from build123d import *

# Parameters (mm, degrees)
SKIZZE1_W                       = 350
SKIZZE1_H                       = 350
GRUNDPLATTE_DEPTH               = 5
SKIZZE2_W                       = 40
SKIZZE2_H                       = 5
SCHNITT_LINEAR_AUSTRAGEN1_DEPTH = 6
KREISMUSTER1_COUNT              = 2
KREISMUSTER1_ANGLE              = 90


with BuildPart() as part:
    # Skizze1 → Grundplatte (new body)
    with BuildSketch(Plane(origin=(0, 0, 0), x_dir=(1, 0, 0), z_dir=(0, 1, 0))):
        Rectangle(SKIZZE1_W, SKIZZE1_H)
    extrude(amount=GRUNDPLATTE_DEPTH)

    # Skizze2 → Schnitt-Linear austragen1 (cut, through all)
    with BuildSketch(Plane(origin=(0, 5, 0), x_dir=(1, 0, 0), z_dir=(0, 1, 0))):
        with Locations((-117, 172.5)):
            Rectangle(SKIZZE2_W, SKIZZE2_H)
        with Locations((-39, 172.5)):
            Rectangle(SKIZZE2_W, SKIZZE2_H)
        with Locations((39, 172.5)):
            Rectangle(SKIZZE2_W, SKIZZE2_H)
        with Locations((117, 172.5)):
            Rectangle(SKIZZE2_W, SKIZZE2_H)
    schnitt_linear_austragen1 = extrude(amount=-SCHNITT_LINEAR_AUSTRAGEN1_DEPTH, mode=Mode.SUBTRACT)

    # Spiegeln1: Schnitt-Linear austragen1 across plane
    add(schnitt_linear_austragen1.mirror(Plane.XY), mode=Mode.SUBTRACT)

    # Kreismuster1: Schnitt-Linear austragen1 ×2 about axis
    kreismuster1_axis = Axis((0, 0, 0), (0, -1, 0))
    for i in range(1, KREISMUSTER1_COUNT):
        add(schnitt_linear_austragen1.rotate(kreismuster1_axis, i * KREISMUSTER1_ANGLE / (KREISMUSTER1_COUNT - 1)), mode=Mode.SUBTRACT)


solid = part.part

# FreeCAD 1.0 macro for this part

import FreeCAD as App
import Part
import Sketcher

V = App.Vector


def add_polygon(sketch, points):
    """Adds a closed chain of lines whose ends are joined by coincident constraints."""
    first, n = sketch.GeometryCount, len(points)
    for a, b in zip(points, points[1:] + points[:1]):
        sketch.addGeometry(Part.LineSegment(App.Vector(*a, 0), App.Vector(*b, 0)), False)
    for i in range(n):
        sketch.addConstraint(Sketcher.Constraint("Coincident", first + i, 2, first + (i + 1) % n, 1))

doc = App.newDocument("Part")
params = doc.addObject("Spreadsheet::Sheet", "Params")
for row, (alias, value) in enumerate([
    ("sketch1_width", "350 mm"),
    ("pad1_length", "5 mm"),
    ("sketch2_width", "40 mm"),
    ("sketch2_height", "5 mm"),
], start=1):
    params.set(f"A{row}", alias)
    params.set(f"B{row}", "=" + value)
    params.setAlias(f"B{row}", alias)

body = doc.addObject("PartDesign::Body", "Body")

# Sketch on XZ plane
sketch1 = body.newObject("Sketcher::SketchObject", "Sketch")
sketch1.AttachmentSupport = (doc.getObject("XZ_Plane"), [""])
sketch1.MapMode = "FlatFace"
add_polygon(sketch1, [(-175, -175), (-175, 175), (175, 175), (175, -175)])  # lines 0-3
sketch1.addConstraint([
    Sketcher.Constraint("Vertical", 0),
    Sketcher.Constraint("Horizontal", 1),
    Sketcher.Constraint("Vertical", 2),
    Sketcher.Constraint("Horizontal", 3),
    Sketcher.Constraint("Symmetric", 0, 2, 2, 2, -1, 1),
    Sketcher.Constraint("Equal", 3, 0),
    Sketcher.Constraint("DistanceX", 1, 1, 1, 2, 350.0),
])
sketch1.setExpression("Constraints[10]", "Params.sketch1_width")
pad1 = body.newObject("PartDesign::Pad", "Pad")
pad1.Profile = sketch1
pad1.setExpression("Length", "Params.pad1_length")
pad1.Reversed = True

# Sketch on XZ plane
sketch2 = body.newObject("Sketcher::SketchObject", "Sketch001")
sketch2.AttachmentSupport = (doc.getObject("XZ_Plane"), [""])
sketch2.MapMode = "FlatFace"
sketch2.AttachmentOffset = App.Placement(V(0, 0, -5), App.Rotation())
add_polygon(sketch2, [(-137, -175), (-137, -170), (-97, -170), (-97, -175)])  # lines 0-3
add_polygon(sketch2, [(-59, -175), (-59, -170), (-19, -170), (-19, -175)])  # lines 4-7
add_polygon(sketch2, [(19, -175), (19, -170), (59, -170), (59, -175)])  # lines 8-11
add_polygon(sketch2, [(97, -175), (97, -170), (137, -170), (137, -175)])  # lines 12-15
sketch2.addConstraint([
    Sketcher.Constraint("Vertical", 0),
    Sketcher.Constraint("Horizontal", 1),
    Sketcher.Constraint("Vertical", 2),
    Sketcher.Constraint("Horizontal", 3),
    Sketcher.Constraint("Vertical", 4),
    Sketcher.Constraint("Horizontal", 5),
    Sketcher.Constraint("Vertical", 6),
    Sketcher.Constraint("Horizontal", 7),
    Sketcher.Constraint("Vertical", 8),
    Sketcher.Constraint("Horizontal", 9),
    Sketcher.Constraint("Vertical", 10),
    Sketcher.Constraint("Horizontal", 11),
    Sketcher.Constraint("Vertical", 12),
    Sketcher.Constraint("Horizontal", 13),
    Sketcher.Constraint("Vertical", 14),
    Sketcher.Constraint("Horizontal", 15),
    Sketcher.Constraint("Symmetric", 5, 2, 8, 2, -2),
    Sketcher.Constraint("Symmetric", 7, 2, 10, 2, -2),
    Sketcher.Constraint("Symmetric", 1, 2, 12, 2, -2),
    Sketcher.Constraint("Symmetric", 3, 2, 14, 2, -2),
    Sketcher.Constraint("Horizontal", 1, 2, 4, 2),
    Sketcher.Constraint("Horizontal", 3, 2, 6, 2),
    Sketcher.Constraint("Equal", 3, 5),
    Sketcher.Constraint("DistanceX", 1, 1, 1, 2, 40.0),
    Sketcher.Constraint("DistanceY", 0, 1, 0, 2, 5.0),
    Sketcher.Constraint("DistanceX", 0, 2, -1, 1, 137.0),
    Sketcher.Constraint("DistanceY", 0, 2, -1, 1, 170.0),
    Sketcher.Constraint("DistanceX", 4, 2, -1, 1, 59.0),
])
sketch2.setExpression("Constraints[39]", "Params.sketch2_width")
sketch2.setExpression("Constraints[40]", "Params.sketch2_height")
pocket1 = body.newObject("PartDesign::Pocket", "Pocket")
pocket1.Profile = sketch2
pocket1.Type = "ThroughAll"
pocket1.Reversed = True
doc.recompute()

mirrored = body.newObject("PartDesign::Mirrored", "Mirrored")
mirrored.Originals = [pocket1]
mirrored.MirrorPlane = (doc.getObject("XY_Plane"), [""])
body.Tip = mirrored
doc.recompute()

polarpattern = body.newObject("PartDesign::PolarPattern", "PolarPattern")
polarpattern.Originals = [pocket1]
polarpattern.Axis = (doc.getObject("Y_Axis"), [""])
polarpattern.Angle = 90
polarpattern.Occurrences = 2
polarpattern.Reversed = True
body.Tip = polarpattern

doc.recompute()
